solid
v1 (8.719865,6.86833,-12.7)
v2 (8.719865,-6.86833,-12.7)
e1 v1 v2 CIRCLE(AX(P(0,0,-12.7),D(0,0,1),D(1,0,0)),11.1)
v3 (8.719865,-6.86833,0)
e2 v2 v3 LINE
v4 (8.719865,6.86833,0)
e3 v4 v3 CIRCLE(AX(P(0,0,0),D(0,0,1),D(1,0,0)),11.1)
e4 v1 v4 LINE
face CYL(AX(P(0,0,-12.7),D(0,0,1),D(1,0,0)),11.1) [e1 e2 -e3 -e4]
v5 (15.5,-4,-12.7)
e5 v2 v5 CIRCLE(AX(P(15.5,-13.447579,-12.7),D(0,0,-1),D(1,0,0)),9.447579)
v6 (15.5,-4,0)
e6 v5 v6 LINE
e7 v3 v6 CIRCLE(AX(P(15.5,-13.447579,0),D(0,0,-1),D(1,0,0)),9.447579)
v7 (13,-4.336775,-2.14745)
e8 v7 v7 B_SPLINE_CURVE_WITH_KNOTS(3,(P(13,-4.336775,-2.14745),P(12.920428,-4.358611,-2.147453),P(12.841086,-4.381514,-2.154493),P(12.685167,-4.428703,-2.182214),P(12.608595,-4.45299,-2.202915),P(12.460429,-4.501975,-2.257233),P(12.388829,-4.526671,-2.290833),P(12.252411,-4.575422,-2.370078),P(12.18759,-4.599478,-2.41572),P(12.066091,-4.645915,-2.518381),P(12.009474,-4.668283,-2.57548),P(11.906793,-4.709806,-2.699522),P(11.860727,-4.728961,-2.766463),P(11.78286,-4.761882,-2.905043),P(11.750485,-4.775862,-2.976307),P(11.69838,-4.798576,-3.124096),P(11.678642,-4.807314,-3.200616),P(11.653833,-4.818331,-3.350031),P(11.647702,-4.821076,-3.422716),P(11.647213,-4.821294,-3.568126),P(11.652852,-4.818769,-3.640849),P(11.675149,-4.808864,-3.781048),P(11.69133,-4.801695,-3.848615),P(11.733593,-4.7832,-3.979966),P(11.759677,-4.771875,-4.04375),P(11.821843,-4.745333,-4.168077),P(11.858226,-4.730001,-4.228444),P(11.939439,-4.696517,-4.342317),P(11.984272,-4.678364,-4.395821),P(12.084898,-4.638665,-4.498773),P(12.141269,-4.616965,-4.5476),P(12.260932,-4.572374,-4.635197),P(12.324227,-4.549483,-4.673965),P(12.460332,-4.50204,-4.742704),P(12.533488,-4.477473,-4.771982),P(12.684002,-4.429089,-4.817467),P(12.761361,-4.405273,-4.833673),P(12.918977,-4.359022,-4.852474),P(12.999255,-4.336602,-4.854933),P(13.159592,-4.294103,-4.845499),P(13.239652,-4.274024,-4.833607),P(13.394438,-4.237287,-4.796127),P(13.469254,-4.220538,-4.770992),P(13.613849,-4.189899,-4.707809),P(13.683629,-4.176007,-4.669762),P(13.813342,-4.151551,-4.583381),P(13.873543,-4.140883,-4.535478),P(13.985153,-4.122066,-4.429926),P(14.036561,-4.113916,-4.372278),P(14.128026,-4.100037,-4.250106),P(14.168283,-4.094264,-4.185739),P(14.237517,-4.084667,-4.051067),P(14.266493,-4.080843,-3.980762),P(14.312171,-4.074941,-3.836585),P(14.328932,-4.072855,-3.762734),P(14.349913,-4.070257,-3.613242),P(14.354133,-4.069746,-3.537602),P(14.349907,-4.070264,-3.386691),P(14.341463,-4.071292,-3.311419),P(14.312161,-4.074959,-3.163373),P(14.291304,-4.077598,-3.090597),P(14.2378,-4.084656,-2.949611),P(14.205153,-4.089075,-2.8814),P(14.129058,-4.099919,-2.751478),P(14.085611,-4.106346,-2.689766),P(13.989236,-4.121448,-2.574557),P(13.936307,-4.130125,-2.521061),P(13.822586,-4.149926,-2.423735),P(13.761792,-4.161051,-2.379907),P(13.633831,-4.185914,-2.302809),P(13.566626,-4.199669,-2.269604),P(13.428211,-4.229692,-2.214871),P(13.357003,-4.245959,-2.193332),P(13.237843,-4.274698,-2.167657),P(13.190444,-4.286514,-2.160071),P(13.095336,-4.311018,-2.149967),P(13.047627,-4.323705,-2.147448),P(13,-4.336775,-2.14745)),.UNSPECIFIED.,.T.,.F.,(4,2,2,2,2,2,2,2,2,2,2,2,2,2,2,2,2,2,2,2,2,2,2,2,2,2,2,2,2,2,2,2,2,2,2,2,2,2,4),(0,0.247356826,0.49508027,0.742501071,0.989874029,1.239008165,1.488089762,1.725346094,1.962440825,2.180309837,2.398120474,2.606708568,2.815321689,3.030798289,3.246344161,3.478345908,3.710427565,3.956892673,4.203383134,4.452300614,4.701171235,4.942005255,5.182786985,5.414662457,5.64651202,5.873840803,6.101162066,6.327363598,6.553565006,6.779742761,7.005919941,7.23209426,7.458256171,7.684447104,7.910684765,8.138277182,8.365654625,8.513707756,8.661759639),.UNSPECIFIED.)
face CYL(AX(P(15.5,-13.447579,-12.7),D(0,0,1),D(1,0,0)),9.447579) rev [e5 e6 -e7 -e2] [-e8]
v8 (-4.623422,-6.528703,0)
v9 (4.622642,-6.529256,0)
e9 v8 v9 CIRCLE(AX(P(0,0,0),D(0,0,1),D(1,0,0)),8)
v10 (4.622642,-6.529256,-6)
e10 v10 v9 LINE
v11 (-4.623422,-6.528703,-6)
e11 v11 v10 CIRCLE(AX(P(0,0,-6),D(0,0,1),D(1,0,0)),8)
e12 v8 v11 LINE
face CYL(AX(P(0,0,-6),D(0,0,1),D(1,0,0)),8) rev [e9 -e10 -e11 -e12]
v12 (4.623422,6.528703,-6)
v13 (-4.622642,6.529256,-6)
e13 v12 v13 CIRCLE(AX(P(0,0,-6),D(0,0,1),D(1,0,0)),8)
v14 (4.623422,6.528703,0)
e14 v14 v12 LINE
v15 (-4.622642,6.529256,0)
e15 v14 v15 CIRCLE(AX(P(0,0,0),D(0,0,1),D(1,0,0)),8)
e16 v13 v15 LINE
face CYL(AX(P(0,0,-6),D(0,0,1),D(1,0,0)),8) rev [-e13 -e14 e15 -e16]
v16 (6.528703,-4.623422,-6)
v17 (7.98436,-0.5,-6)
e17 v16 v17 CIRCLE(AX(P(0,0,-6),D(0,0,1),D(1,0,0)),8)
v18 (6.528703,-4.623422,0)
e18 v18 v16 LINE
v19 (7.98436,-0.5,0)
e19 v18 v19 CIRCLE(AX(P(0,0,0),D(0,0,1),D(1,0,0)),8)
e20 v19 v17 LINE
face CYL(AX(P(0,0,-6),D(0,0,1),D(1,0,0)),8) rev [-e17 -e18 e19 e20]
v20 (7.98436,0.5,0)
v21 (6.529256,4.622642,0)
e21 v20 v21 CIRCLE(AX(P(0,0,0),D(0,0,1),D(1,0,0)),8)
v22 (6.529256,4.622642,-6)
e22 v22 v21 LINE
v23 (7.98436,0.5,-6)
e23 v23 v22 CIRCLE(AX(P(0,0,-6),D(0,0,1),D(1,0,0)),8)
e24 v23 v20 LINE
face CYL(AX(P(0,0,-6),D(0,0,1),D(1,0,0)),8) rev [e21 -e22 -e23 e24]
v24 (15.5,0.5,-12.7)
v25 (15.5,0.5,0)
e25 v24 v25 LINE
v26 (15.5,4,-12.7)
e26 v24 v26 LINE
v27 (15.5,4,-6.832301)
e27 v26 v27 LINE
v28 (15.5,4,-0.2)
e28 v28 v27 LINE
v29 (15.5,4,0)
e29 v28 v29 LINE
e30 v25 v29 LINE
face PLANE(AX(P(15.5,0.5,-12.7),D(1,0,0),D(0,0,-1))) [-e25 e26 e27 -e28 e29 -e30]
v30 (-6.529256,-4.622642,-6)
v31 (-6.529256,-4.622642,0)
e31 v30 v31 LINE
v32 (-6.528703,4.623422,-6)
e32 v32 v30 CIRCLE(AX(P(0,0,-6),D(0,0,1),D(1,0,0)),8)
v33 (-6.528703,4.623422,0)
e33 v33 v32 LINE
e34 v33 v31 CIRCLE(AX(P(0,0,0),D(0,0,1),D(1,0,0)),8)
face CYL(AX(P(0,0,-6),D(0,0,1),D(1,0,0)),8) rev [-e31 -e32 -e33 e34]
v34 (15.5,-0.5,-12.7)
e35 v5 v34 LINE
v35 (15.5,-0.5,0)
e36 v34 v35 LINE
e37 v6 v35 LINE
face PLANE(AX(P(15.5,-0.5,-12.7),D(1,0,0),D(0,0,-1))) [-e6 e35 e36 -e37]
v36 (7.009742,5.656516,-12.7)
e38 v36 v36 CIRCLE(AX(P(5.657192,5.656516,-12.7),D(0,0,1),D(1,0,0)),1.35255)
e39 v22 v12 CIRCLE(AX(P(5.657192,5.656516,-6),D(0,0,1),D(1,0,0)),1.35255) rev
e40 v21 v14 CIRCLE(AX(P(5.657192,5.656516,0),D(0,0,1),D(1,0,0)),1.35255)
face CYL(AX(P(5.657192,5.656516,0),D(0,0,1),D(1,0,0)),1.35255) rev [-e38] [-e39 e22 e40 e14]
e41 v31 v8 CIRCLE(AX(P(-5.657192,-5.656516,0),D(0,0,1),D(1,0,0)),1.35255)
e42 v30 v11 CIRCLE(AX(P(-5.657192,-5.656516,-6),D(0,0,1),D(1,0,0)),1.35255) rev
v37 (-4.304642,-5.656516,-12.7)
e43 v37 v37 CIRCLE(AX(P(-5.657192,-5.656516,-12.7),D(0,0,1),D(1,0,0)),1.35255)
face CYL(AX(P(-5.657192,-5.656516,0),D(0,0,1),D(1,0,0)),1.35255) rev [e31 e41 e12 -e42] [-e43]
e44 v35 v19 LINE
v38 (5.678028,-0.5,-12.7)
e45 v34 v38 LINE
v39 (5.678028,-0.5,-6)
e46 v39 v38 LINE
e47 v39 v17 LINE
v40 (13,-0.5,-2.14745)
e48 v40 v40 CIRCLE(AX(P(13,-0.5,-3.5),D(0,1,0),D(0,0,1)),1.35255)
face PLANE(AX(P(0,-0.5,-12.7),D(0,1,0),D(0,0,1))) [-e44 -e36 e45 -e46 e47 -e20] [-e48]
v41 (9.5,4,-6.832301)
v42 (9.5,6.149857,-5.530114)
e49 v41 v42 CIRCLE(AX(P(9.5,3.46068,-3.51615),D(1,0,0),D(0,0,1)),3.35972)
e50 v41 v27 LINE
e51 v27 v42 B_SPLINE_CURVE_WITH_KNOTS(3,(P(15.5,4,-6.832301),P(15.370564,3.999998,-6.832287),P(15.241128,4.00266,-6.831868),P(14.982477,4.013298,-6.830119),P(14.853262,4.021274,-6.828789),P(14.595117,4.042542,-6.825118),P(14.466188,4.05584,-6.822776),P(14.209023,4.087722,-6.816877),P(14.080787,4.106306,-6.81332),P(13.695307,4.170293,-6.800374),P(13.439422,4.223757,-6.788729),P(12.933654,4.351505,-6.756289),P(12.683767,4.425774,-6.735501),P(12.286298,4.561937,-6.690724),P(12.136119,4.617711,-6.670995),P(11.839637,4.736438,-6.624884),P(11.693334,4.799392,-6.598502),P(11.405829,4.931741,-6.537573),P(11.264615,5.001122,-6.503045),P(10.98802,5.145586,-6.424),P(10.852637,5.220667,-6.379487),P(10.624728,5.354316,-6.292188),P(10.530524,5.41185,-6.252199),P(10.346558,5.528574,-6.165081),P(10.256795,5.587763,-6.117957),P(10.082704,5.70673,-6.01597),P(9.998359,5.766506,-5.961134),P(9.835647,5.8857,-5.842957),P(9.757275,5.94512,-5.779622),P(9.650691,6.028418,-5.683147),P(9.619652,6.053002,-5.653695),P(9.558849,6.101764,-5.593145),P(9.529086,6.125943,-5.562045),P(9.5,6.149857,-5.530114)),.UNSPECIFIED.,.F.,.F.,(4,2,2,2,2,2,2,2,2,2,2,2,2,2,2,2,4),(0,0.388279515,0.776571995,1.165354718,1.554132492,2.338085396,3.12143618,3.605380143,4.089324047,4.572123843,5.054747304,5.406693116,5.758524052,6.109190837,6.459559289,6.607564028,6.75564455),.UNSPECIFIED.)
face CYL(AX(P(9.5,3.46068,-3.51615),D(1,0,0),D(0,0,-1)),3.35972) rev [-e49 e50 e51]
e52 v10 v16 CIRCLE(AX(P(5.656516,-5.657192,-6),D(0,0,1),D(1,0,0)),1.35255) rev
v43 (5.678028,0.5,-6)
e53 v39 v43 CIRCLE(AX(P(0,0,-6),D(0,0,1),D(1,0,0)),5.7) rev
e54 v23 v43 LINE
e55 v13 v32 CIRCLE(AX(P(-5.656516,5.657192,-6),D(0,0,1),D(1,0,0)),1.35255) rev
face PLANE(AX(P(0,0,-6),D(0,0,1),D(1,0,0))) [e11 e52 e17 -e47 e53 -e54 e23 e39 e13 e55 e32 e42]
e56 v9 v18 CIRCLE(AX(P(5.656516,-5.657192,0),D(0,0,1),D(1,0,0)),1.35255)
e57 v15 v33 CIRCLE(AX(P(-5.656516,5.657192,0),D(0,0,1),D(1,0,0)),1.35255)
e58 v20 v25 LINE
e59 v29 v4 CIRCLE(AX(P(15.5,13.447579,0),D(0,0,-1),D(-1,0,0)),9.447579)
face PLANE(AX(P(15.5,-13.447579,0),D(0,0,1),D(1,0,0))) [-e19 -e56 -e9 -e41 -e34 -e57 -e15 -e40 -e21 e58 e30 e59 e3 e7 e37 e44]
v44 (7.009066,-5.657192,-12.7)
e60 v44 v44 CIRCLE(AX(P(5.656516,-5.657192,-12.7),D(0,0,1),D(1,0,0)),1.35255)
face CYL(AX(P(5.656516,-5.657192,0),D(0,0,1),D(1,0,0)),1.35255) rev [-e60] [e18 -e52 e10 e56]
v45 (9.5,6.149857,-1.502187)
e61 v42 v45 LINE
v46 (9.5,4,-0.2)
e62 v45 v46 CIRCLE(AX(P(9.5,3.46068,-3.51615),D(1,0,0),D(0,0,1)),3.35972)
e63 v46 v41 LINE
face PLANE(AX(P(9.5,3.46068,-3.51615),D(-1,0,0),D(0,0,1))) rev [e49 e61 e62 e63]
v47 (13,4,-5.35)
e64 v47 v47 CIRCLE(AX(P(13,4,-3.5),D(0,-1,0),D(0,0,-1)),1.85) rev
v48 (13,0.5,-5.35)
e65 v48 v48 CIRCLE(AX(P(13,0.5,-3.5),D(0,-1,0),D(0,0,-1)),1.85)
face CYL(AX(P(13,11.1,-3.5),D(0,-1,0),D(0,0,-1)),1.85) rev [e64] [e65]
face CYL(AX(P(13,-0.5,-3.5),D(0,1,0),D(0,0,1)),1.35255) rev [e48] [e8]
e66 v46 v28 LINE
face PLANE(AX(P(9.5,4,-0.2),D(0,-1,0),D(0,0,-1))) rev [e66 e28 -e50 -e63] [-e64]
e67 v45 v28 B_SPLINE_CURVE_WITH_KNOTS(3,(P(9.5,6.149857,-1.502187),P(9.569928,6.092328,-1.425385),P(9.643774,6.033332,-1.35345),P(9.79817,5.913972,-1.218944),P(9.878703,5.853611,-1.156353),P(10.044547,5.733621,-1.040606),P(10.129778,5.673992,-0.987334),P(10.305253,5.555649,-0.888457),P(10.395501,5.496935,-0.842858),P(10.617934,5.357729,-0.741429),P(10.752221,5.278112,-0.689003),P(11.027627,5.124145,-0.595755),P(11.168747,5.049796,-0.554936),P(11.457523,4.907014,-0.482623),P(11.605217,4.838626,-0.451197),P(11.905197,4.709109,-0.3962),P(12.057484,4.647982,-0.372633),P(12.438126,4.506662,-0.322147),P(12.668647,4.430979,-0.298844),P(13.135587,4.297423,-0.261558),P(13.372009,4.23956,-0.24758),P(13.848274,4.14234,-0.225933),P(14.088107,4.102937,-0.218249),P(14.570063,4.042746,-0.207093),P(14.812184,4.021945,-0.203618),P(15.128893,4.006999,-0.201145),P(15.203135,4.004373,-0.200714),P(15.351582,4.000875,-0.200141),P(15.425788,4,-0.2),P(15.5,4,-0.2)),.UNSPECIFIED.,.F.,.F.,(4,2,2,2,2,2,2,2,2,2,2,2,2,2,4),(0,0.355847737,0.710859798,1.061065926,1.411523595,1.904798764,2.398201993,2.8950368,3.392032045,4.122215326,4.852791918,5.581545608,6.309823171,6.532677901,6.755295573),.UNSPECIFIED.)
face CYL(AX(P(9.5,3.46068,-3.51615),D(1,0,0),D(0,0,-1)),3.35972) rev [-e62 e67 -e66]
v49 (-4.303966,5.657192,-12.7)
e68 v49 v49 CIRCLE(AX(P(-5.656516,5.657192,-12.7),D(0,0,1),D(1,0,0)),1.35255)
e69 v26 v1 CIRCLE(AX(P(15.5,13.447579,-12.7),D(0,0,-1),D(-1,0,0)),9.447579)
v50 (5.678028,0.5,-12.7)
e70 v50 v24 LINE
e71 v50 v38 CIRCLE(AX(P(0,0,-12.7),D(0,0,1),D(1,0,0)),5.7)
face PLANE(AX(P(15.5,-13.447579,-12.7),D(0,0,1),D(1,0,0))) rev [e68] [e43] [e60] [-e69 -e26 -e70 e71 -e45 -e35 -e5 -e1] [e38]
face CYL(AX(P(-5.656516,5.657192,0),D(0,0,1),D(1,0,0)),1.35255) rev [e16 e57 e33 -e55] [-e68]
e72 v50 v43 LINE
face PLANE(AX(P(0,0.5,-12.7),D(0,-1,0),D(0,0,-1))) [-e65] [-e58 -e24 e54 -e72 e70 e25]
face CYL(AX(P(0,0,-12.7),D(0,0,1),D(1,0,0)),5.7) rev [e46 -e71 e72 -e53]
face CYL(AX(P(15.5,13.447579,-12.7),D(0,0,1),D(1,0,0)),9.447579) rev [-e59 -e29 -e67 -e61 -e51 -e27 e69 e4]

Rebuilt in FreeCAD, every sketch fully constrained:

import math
import FreeCAD as App
import Part
import Sketcher

doc = App.newDocument("Part")
params = doc.addObject("Spreadsheet::Sheet", "Params")
for row, (alias, value) in enumerate([
    ("sketch1_radius", "11.1 mm"),
    ("sketch1_height", "1 mm"),
    ("sketch1_width", "15.5 mm"),
    ("sketch1_height2", "3.5 mm"),
    ("pad1_length", "12.7 mm"),
    ("hole_diameter", "2.7051 mm"),
    ("sketch3_diameter", "3.7 mm"),
    ("hole2_diameter", "2.7051 mm"),
    ("hole2_depth", "50.8 mm"),
    ("pocket2_length", "6 mm"),
    ("sketch6_diameter", "11.4 mm"),
    ("sketch7_diameter", "16 mm"),
    ("pocket4_length", "6 mm"),
], start=1):
    params.set(f"A{row}", alias)
    params.set(f"B{row}", "=" + value)
    params.setAlias(f"B{row}", alias)

body = doc.addObject("PartDesign::Body", "Body")

# Sketch on XY plane
sketch1 = doc.addObject("Sketcher::SketchObject", "Sketch")
body.addObject(sketch1)
sketch1.AttachmentSupport = (doc.XY_Plane, [""])
sketch1.MapMode = "FlatFace"
sketch1.addGeometry(Part.LineSegment(App.Vector(0, 0.5, 0), App.Vector(15.5, 0.5, 0)), False)
sketch1.addGeometry(Part.LineSegment(App.Vector(15.5, 0.5, 0), App.Vector(15.5, 4, 0)), False)
sketch1.addGeometry(Part.ArcOfCircle(Part.Circle(App.Vector(15.5, 13.4, 0), App.Vector(0, 0, 1), 9.4), math.radians(-136), math.radians(-90)), False)
sketch1.addGeometry(Part.ArcOfCircle(Part.Circle(App.Vector(0, 0, 0), App.Vector(0, 0, 1), 11.1), math.radians(38), math.radians(322)), False)
sketch1.addGeometry(Part.ArcOfCircle(Part.Circle(App.Vector(15.5, -13.4, 0), App.Vector(0, 0, 1), 9.4), math.radians(90), math.radians(136)), False)
sketch1.addGeometry(Part.LineSegment(App.Vector(15.5, -4, 0), App.Vector(15.5, -0.5, 0)), False)
sketch1.addGeometry(Part.LineSegment(App.Vector(15.5, -0.5, 0), App.Vector(0, -0.5, 0)), False)
sketch1.addGeometry(Part.LineSegment(App.Vector(0, -0.5, 0), App.Vector(0, 0.5, 0)), False)
sketch1.addConstraint(Sketcher.Constraint("Coincident", 0, 2, 1, 1))
sketch1.addConstraint(Sketcher.Constraint("Coincident", 1, 2, 2, 2))
sketch1.addConstraint(Sketcher.Constraint("Coincident", 2, 1, 3, 1))
sketch1.addConstraint(Sketcher.Constraint("Coincident", 3, 2, 4, 2))
sketch1.addConstraint(Sketcher.Constraint("Coincident", 4, 1, 5, 1))
sketch1.addConstraint(Sketcher.Constraint("Coincident", 5, 2, 6, 1))
sketch1.addConstraint(Sketcher.Constraint("Coincident", 6, 2, 7, 1))
sketch1.addConstraint(Sketcher.Constraint("Coincident", 7, 2, 0, 1))
sketch1.addConstraint(Sketcher.Constraint("Horizontal", 0))
sketch1.addConstraint(Sketcher.Constraint("Vertical", 1))
sketch1.addConstraint(Sketcher.Constraint("Vertical", 5))
sketch1.addConstraint(Sketcher.Constraint("Horizontal", 6))
sketch1.addConstraint(Sketcher.Constraint("Vertical", 7))
sketch1.addConstraint(Sketcher.Constraint("Coincident", 3, 3, -1, 1))
sketch1.addConstraint(Sketcher.Constraint("Equal", 2, 4))
sketch1.addConstraint(Sketcher.Constraint("Symmetric", 6, 2, 7, 2, -1, 1))
sketch1.addConstraint(Sketcher.Constraint("Symmetric", 2, 3, 4, 3, -1))
sketch1.addConstraint(Sketcher.Constraint("Vertical", 4, 3, 0, 2))
sketch1.addConstraint(Sketcher.Constraint("Vertical", 1, 2, 4, 1))
sketch1.addConstraint(Sketcher.Constraint("Radius", 3, 11.1))
sketch1.addConstraint(Sketcher.Constraint("DistanceY", 7, 1, 7, 2, 1.0))
sketch1.addConstraint(Sketcher.Constraint("DistanceX", 0, 1, 0, 2, 15.5))
sketch1.addConstraint(Sketcher.Constraint("DistanceY", 1, 1, 1, 2, 3.5))
sketch1.addConstraint(Sketcher.Constraint("Radius", 2, 9.447579))
sketch1.setExpression("Constraints[19]", "Params.sketch1_radius")
sketch1.setExpression("Constraints[20]", "Params.sketch1_height")
sketch1.setExpression("Constraints[21]", "Params.sketch1_width")
sketch1.setExpression("Constraints[22]", "Params.sketch1_height2")
pad1 = doc.addObject("PartDesign::Pad", "Pad")
body.addObject(pad1)
pad1.Profile = sketch1
pad1.setExpression("Length", "Params.pad1_length")
pad1.Reversed = True

# Sketch on XY plane
sketch2 = doc.addObject("Sketcher::SketchObject", "Sketch001")
body.addObject(sketch2)
sketch2.AttachmentSupport = (doc.XY_Plane, [""])
sketch2.MapMode = "FlatFace"
sketch2.addGeometry(Part.Circle(App.Vector(-5.7, 5.7, 0), App.Vector(0, 0, 1), 1.4), False)
sketch2.addGeometry(Part.Circle(App.Vector(5.7, 5.7, 0), App.Vector(0, 0, 1), 1.4), False)
sketch2.addGeometry(Part.Circle(App.Vector(5.7, -5.7, 0), App.Vector(0, 0, 1), 1.4), False)
sketch2.addGeometry(Part.Circle(App.Vector(-5.7, -5.7, 0), App.Vector(0, 0, 1), 1.4), False)
sketch2.addConstraint(Sketcher.Constraint("Equal", 0, 1))
sketch2.addConstraint(Sketcher.Constraint("Equal", 1, 2))
sketch2.addConstraint(Sketcher.Constraint("Equal", 2, 3))
sketch2.addConstraint(Sketcher.Constraint("Symmetric", 0, 3, 2, 3, -1, 1))
sketch2.addConstraint(Sketcher.Constraint("Symmetric", 1, 3, 3, 3, -1, 1))
sketch2.addConstraint(Sketcher.Constraint("Diameter", 0, 2.7051))
sketch2.addConstraint(Sketcher.Constraint("DistanceX", 0, 3, 1, 3, 11.313708))
sketch2.addConstraint(Sketcher.Constraint("DistanceY", 2, 3, 1, 3, 11.313708))
sketch2.addConstraint(Sketcher.Constraint("DistanceX", 0, 3, -1, 1, 5.656516))
sketch2.addConstraint(Sketcher.Constraint("DistanceY", -1, 1, 0, 3, 5.657192))
doc.recompute()
hole = doc.addObject("PartDesign::Hole", "Hole")
body.addObject(hole)
hole.Profile = sketch2
hole.ThreadType = "None"
hole.setExpression("Diameter", "Params.hole_diameter")
hole.DepthType = "ThroughAll"

# Sketch on XZ plane
sketch3 = doc.addObject("Sketcher::SketchObject", "Sketch002")
body.addObject(sketch3)
sketch3.AttachmentSupport = (doc.XZ_Plane, [""])
sketch3.MapMode = "FlatFace"
sketch3.AttachmentOffset = App.Placement(App.Vector(0, 0, -0.5), App.Rotation())
sketch3.addGeometry(Part.Circle(App.Vector(13, -3.5, 0), App.Vector(0, 0, 1), 1.9), False)
sketch3.addConstraint(Sketcher.Constraint("Diameter", 0, 3.7))
sketch3.addConstraint(Sketcher.Constraint("DistanceX", -1, 1, 0, 3, 13.0))
sketch3.addConstraint(Sketcher.Constraint("DistanceY", 0, 3, -1, 1, 3.5))
sketch3.setExpression("Constraints[0]", "Params.sketch3_diameter")
pocket1 = doc.addObject("PartDesign::Pocket", "Pocket")
body.addObject(pocket1)
pocket1.Profile = sketch3
pocket1.Type = "ThroughAll"

# Sketch on XZ plane
sketch4 = doc.addObject("Sketcher::SketchObject", "Sketch003")
body.addObject(sketch4)
sketch4.AttachmentSupport = (doc.XZ_Plane, [""])
sketch4.MapMode = "FlatFace"
sketch4.AttachmentOffset = App.Placement(App.Vector(0, 0, 0.5), App.Rotation())
sketch4.addGeometry(Part.Circle(App.Vector(13, -3.5, 0), App.Vector(0, 0, 1), 1.4), False)
sketch4.addConstraint(Sketcher.Constraint("DistanceX", -1, 1, 0, 3, 13.0))
sketch4.addConstraint(Sketcher.Constraint("Diameter", 0, 2.7051))
sketch4.addConstraint(Sketcher.Constraint("DistanceY", 0, 3, -1, 1, 3.5))
doc.recompute()
hole2 = doc.addObject("PartDesign::Hole", "Hole001")
body.addObject(hole2)
hole2.Profile = sketch4
hole2.ThreadType = "None"
hole2.setExpression("Diameter", "Params.hole2_diameter")
hole2.DepthType = "Dimension"
hole2.setExpression("Depth", "Params.hole2_depth")
hole2.DrillPoint = "Angled"
hole2.DrillPointAngle = 118
hole2.Reversed = True

# Sketch on YZ plane
sketch5 = doc.addObject("Sketcher::SketchObject", "Sketch004")
body.addObject(sketch5)
sketch5.AttachmentSupport = (doc.YZ_Plane, [""])
sketch5.MapMode = "FlatFace"
sketch5.AttachmentOffset = App.Placement(App.Vector(0, 0, 15.5), App.Rotation())
sketch5.addGeometry(Part.LineSegment(App.Vector(4, -0.2, 0), App.Vector(4, -6.8, 0)), False)
sketch5.addGeometry(Part.ArcOfCircle(Part.Circle(App.Vector(3.5, -3.5, 0), App.Vector(0, 0, 1), 3.4), math.radians(-81), math.radians(81)), False)
sketch5.addConstraint(Sketcher.Constraint("Coincident", 0, 1, 1, 2))
sketch5.addConstraint(Sketcher.Constraint("Coincident", 1, 1, 0, 2))
sketch5.addConstraint(Sketcher.Constraint("Vertical", 0))
sketch5.addConstraint(Sketcher.Constraint("DistanceX", -1, 1, 0, 1, 4.0))
sketch5.addConstraint(Sketcher.Constraint("DistanceY", 0, 1, -1, 1, 0.2))
sketch5.addConstraint(Sketcher.Constraint("Radius", 1, 3.35972))
sketch5.addConstraint(Sketcher.Constraint("DistanceY", 0, 2, 0, 1, 6.632301))
pocket2 = doc.addObject("PartDesign::Pocket", "Pocket001")
body.addObject(pocket2)
pocket2.Profile = sketch5
pocket2.setExpression("Length", "Params.pocket2_length")

# Sketch on XY plane
sketch6 = doc.addObject("Sketcher::SketchObject", "Sketch005")
body.addObject(sketch6)
sketch6.AttachmentSupport = (doc.XY_Plane, [""])
sketch6.MapMode = "FlatFace"
sketch6.addGeometry(Part.Circle(App.Vector(0, 0, 0), App.Vector(0, 0, 1), 6), False)
sketch6.addConstraint(Sketcher.Constraint("Coincident", 0, 3, -1, 1))
sketch6.addConstraint(Sketcher.Constraint("Diameter", 0, 11.4))
sketch6.setExpression("Constraints[1]", "Params.sketch6_diameter")
pocket3 = doc.addObject("PartDesign::Pocket", "Pocket002")
body.addObject(pocket3)
pocket3.Profile = sketch6
pocket3.Type = "ThroughAll"

# Sketch on XY plane
sketch7 = doc.addObject("Sketcher::SketchObject", "Sketch006")
body.addObject(sketch7)
sketch7.AttachmentSupport = (doc.XY_Plane, [""])
sketch7.MapMode = "FlatFace"
sketch7.addGeometry(Part.Circle(App.Vector(0, 0, 0), App.Vector(0, 0, 1), 8), False)
sketch7.addConstraint(Sketcher.Constraint("Coincident", 0, 3, -1, 1))
sketch7.addConstraint(Sketcher.Constraint("Diameter", 0, 16.0))
sketch7.setExpression("Constraints[1]", "Params.sketch7_diameter")
pocket4 = doc.addObject("PartDesign::Pocket", "Pocket003")
body.addObject(pocket4)
pocket4.Profile = sketch7
pocket4.setExpression("Length", "Params.pocket4_length")

doc.recompute()
